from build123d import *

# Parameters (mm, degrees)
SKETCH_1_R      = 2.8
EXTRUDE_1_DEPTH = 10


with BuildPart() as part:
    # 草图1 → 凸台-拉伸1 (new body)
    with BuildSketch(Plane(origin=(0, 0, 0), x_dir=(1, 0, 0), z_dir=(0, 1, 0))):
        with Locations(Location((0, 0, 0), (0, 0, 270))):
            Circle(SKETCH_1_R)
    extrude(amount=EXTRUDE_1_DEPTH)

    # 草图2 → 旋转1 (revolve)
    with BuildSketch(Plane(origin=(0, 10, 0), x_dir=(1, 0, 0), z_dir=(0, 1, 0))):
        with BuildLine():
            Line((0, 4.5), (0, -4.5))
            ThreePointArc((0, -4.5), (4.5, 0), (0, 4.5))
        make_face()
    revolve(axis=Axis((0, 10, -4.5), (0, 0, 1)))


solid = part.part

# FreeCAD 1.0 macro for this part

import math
import FreeCAD as App
import Part
import Sketcher

doc = App.newDocument("Part")
params = doc.addObject("Spreadsheet::Sheet", "Params")
for row, (alias, value) in enumerate([
    ("sketch1_diameter", "5.6 mm"),
    ("pad1_length", "10 mm"),
    ("sketch2_radius", "4.5 mm"),
    ("revolution_angle", "360 deg"),
], start=1):
    params.set(f"A{row}", alias)
    params.set(f"B{row}", "=" + value)
    params.setAlias(f"B{row}", alias)

body = doc.addObject("PartDesign::Body", "Body")

# Sketch on XZ plane
sketch1 = body.newObject("Sketcher::SketchObject", "Sketch")
sketch1.AttachmentSupport = (doc.getObject("XZ_Plane"), [""])
sketch1.MapMode = "FlatFace"
sketch1.addGeometry(Part.Circle(App.Vector(0, 0, 0), App.Vector(0, 0, 1), 2.8), False)
sketch1.addConstraint([
    Sketcher.Constraint("Coincident", 0, 3, -1, 1),
    Sketcher.Constraint("Diameter", 0, 5.6),
])
sketch1.setExpression("Constraints[1]", "Params.sketch1_diameter")
pad1 = body.newObject("PartDesign::Pad", "Pad")
pad1.Profile = sketch1
pad1.setExpression("Length", "Params.pad1_length")
pad1.Reversed = True

# Sketch on XZ plane
sketch2 = body.newObject("Sketcher::SketchObject", "Sketch001")
sketch2.AttachmentSupport = (doc.getObject("XZ_Plane"), [""])
sketch2.MapMode = "FlatFace"
sketch2.AttachmentOffset = App.Placement(App.Vector(0, 0, -10), App.Rotation())
sketch2.addGeometry([
    Part.LineSegment(App.Vector(0, -4.5, 0), App.Vector(0, 4.5, 0)),
    Part.ArcOfCircle(Part.Circle(App.Vector(0, 0, 0), App.Vector(0, 0, 1), 4.5), math.radians(-90), math.radians(90)),
], False)
sketch2.addConstraint([
    Sketcher.Constraint("Coincident", 0, 1, 1, 1),
    Sketcher.Constraint("Coincident", 1, 2, 0, 2),
    Sketcher.Constraint("Vertical", 0),
    Sketcher.Constraint("Coincident", 1, 3, -1, 1),
    Sketcher.Constraint("PointOnObject", 0, 1, -2),
    Sketcher.Constraint("Radius", 1, 4.5),
])
sketch2.setExpression("Constraints[5]", "Params.sketch2_radius")
revolution = body.newObject("PartDesign::Revolution", "Revolution")
revolution.Profile = sketch2
revolution.ReferenceAxis = (sketch2, ["V_Axis"])
revolution.setExpression("Angle", "Params.revolution_angle")

doc.recompute()
